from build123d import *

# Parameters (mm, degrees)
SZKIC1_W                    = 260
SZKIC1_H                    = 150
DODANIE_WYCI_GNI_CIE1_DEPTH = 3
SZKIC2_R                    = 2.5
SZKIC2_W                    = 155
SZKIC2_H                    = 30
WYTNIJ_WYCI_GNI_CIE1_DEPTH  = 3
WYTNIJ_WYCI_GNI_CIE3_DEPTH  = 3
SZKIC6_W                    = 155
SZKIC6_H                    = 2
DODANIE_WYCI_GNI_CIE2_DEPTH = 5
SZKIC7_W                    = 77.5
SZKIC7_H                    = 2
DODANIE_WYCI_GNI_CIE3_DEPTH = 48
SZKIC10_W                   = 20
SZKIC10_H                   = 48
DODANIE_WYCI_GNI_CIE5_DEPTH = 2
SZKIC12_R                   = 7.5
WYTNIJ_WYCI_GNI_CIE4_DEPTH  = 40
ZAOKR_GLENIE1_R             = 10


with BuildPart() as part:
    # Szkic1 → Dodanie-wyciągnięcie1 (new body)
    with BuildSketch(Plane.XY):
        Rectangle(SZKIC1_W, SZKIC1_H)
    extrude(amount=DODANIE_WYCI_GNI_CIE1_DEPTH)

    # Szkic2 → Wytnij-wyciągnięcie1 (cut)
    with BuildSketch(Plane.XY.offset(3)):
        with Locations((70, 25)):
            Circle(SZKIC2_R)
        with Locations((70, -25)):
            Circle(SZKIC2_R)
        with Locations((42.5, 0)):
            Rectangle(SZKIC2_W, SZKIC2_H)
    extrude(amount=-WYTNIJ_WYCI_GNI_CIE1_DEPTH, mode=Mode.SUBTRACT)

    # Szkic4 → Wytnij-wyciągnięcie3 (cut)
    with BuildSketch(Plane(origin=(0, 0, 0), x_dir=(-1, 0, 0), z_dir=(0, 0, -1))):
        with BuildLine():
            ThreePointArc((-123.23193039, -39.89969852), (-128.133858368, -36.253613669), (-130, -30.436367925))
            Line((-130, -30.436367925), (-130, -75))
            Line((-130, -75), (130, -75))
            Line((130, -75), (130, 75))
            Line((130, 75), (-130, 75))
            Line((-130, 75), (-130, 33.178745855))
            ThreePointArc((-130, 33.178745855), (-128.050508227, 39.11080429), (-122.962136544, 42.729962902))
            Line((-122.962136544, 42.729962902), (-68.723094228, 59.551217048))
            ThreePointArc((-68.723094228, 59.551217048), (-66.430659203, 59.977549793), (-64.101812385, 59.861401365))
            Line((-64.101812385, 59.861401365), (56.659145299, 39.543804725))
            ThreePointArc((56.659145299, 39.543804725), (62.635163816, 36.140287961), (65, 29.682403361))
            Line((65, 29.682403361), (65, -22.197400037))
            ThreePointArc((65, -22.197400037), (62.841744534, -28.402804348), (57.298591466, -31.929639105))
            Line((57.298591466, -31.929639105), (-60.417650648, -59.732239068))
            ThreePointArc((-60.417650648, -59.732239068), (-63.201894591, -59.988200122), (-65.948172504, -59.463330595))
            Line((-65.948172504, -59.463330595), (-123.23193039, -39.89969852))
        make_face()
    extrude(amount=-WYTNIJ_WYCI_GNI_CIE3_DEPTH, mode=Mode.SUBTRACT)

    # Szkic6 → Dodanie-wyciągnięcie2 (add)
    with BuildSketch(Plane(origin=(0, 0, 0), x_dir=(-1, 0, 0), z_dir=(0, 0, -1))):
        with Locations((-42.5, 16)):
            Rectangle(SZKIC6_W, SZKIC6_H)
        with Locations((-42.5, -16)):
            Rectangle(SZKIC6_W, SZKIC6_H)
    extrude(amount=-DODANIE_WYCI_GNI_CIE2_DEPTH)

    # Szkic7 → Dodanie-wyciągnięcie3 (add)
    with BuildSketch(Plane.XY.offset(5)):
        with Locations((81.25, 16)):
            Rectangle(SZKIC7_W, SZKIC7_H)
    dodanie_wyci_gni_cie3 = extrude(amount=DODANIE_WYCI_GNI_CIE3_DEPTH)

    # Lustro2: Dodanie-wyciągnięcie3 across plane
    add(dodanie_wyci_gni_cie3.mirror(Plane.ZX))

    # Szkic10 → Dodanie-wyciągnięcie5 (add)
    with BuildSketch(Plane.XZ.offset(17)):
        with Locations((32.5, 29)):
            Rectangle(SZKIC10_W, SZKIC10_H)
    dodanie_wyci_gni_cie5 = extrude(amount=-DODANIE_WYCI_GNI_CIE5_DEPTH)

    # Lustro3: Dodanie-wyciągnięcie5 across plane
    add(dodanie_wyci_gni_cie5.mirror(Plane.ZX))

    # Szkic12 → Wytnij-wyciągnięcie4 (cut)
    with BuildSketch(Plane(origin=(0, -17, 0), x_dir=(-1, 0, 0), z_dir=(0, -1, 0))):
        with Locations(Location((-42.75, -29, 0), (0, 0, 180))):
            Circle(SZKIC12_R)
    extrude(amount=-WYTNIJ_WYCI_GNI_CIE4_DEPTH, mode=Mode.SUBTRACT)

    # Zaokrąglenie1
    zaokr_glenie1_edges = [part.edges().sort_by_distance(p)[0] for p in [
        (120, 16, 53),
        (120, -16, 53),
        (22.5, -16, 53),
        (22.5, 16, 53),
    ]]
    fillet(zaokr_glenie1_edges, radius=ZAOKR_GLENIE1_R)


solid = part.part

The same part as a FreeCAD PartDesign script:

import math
import FreeCAD as App
import Part
import Sketcher

V = App.Vector
Q = App.Units.Quantity


def edges_at(feature, points):
    """Names of the edges that pass closest to the given points."""
    edges = feature.Shape.Edges
    near = lambda p: min(range(len(edges)), key=lambda i: edges[i].distToShape(Part.Vertex(*p))[0])
    return sorted({f"Edge{near(p) + 1}" for p in points})

doc = App.newDocument("Part")
body = doc.addObject("PartDesign::Body", "Body")

sketch1 = body.newObject("Sketcher::SketchObject", "Sketch")
sketch1.AttachmentSupport = (doc.getObject("XY_Plane"), [""])
sketch1.MapMode = "FlatFace"
sketch1.addGeometry([
    Part.LineSegment(V(-130, 75, 0), V(-130, -75, 0)),
    Part.LineSegment(V(-130, -75, 0), V(130, -75, 0)),
    Part.LineSegment(V(130, -75, 0), V(130, 75, 0)),
    Part.LineSegment(V(130, 75, 0), V(-130, 75, 0)),
], False)
sketch1.addConstraint([
    Sketcher.Constraint("Coincident", 0, 2, 1, 1),
    Sketcher.Constraint("Coincident", 1, 2, 2, 1),
    Sketcher.Constraint("Coincident", 2, 2, 3, 1),
    Sketcher.Constraint("Coincident", 3, 2, 0, 1),
    Sketcher.Constraint("Vertical", 0),
    Sketcher.Constraint("Horizontal", 1),
    Sketcher.Constraint("Vertical", 2),
    Sketcher.Constraint("Horizontal", 3),
    Sketcher.Constraint("Symmetric", 0, 2, 2, 2, -1, 1),
    Sketcher.Constraint("DistanceX", 1, 1, 1, 2, Q("260 mm")),
    Sketcher.Constraint("DistanceY", 0, 2, 0, 1, Q("150 mm")),
])
pad1 = body.newObject("PartDesign::Pad", "Pad")
pad1.Profile = sketch1
pad1.Length = 3

sketch2 = body.newObject("Sketcher::SketchObject", "Sketch001")
sketch2.AttachmentSupport = (doc.getObject("XY_Plane"), [""])
sketch2.MapMode = "FlatFace"
sketch2.AttachmentOffset = App.Placement(V(0, 0, 3), App.Rotation())
sketch2.addGeometry([
    Part.Circle(V(70, 25, 0), V(0, 0, 1), 2.5),
    Part.Circle(V(70, -25, 0), V(0, 0, 1), 2.5),
    Part.LineSegment(V(-35, 15, 0), V(-35, -15, 0)),
    Part.LineSegment(V(-35, -15, 0), V(120, -15, 0)),
    Part.LineSegment(V(120, -15, 0), V(120, 15, 0)),
    Part.LineSegment(V(120, 15, 0), V(-35, 15, 0)),
], False)
sketch2.addConstraint([
    Sketcher.Constraint("Coincident", 2, 2, 3, 1),
    Sketcher.Constraint("Coincident", 3, 2, 4, 1),
    Sketcher.Constraint("Coincident", 4, 2, 5, 1),
    Sketcher.Constraint("Coincident", 5, 2, 2, 1),
    Sketcher.Constraint("Vertical", 2),
    Sketcher.Constraint("Horizontal", 3),
    Sketcher.Constraint("Vertical", 4),
    Sketcher.Constraint("Horizontal", 5),
    Sketcher.Constraint("Equal", 0, 1),
    Sketcher.Constraint("Symmetric", 0, 3, 1, 3, -1),
    Sketcher.Constraint("Diameter", 0, Q("5 mm")),
    Sketcher.Constraint("DistanceX", 3, 1, 3, 2, Q("155 mm")),
    Sketcher.Constraint("DistanceY", 2, 2, 2, 1, Q("30 mm")),
    Sketcher.Constraint("DistanceX", -1, 1, 0, 3, Q("70 mm")),
    Sketcher.Constraint("DistanceY", -1, 1, 0, 3, Q("25 mm")),
    Sketcher.Constraint("DistanceX", 2, 2, -1, 1, Q("35 mm")),
    Sketcher.Constraint("DistanceY", 2, 2, -1, 1, Q("15 mm")),
])
pocket1 = body.newObject("PartDesign::Pocket", "Pocket")
pocket1.Profile = sketch2
pocket1.Length = 3

sketch3 = body.newObject("Sketcher::SketchObject", "Sketch002")
sketch3.AttachmentSupport = (doc.getObject("XY_Plane"), [""])
sketch3.MapMode = "FlatFace"
sketch3.addGeometry([
    Part.ArcOfCircle(Part.Circle(V(120, -30.436368, 0), V(0, 0, 1), 10), math.radians(-71.143863), math.radians(0)),
    Part.LineSegment(V(130, -30.436368, 0), V(130, -75, 0)),
    Part.LineSegment(V(130, -75, 0), V(-130, -75, 0)),
    Part.LineSegment(V(-130, -75, 0), V(-130, 75, 0)),
    Part.LineSegment(V(-130, 75, 0), V(130, 75, 0)),
    Part.LineSegment(V(130, 75, 0), V(130, 33.178746, 0)),
    Part.ArcOfCircle(Part.Circle(V(120, 33.178746, 0), V(0, 0, 1), 10), math.radians(0), math.radians(72.769672)),
    Part.LineSegment(V(122.962137, 42.729963, 0), V(68.723094, 59.551217, 0)),
    Part.ArcOfCircle(Part.Circle(V(65.760958, 50, 0), V(0, 0, 1), 10), math.radians(72.769672), math.radians(99.550365)),
    Part.LineSegment(V(64.101812, 59.861401, 0), V(-56.659145, 39.543805, 0)),
    Part.ArcOfCircle(Part.Circle(V(-55, 29.682403, 0), V(0, 0, 1), 10), math.radians(99.550365), math.radians(180)),
    Part.LineSegment(V(-65, 29.682403, 0), V(-65, -22.1974, 0)),
    Part.ArcOfCircle(Part.Circle(V(-55, -22.1974, 0), V(0, 0, 1), 10), math.radians(180), math.radians(256.711221)),
    Part.LineSegment(V(-57.298591, -31.929639, 0), V(60.417651, -59.732239, 0)),
    Part.ArcOfCircle(Part.Circle(V(62.716242, -50, 0), V(0, 0, 1), 10), math.radians(-103.288779), math.radians(-71.143863)),
    Part.LineSegment(V(65.948173, -59.463331, 0), V(123.23193, -39.899699, 0)),
], False)
sketch3.addConstraint([
    Sketcher.Constraint("Coincident", 0, 2, 1, 1),
    Sketcher.Constraint("Coincident", 1, 2, 2, 1),
    Sketcher.Constraint("Coincident", 2, 2, 3, 1),
    Sketcher.Constraint("Coincident", 3, 2, 4, 1),
    Sketcher.Constraint("Coincident", 4, 2, 5, 1),
    Sketcher.Constraint("Coincident", 5, 2, 6, 1),
    Sketcher.Constraint("Coincident", 6, 2, 7, 1),
    Sketcher.Constraint("Coincident", 7, 2, 8, 1),
    Sketcher.Constraint("Coincident", 8, 2, 9, 1),
    Sketcher.Constraint("Coincident", 9, 2, 10, 1),
    Sketcher.Constraint("Coincident", 10, 2, 11, 1),
    Sketcher.Constraint("Coincident", 11, 2, 12, 1),
    Sketcher.Constraint("Coincident", 12, 2, 13, 1),
    Sketcher.Constraint("Coincident", 13, 2, 14, 1),
    Sketcher.Constraint("Coincident", 14, 2, 15, 1),
    Sketcher.Constraint("Coincident", 15, 2, 0, 1),
    Sketcher.Constraint("Vertical", 1),
    Sketcher.Constraint("Horizontal", 2),
    Sketcher.Constraint("Vertical", 3),
    Sketcher.Constraint("Horizontal", 4),
    Sketcher.Constraint("Vertical", 5),
    Sketcher.Constraint("Vertical", 11),
    Sketcher.Constraint("Radius", 0, Q("10 mm")),
    Sketcher.Constraint("Radius", 6, Q("10 mm")),
    Sketcher.Constraint("Radius", 8, Q("10 mm")),
    Sketcher.Constraint("Radius", 10, Q("10 mm")),
    Sketcher.Constraint("Radius", 12, Q("10 mm")),
    Sketcher.Constraint("Radius", 14, Q("10 mm")),
    Sketcher.Constraint("DistanceX", 2, 2, 2, 1, Q("260 mm")),
    Sketcher.Constraint("DistanceX", 4, 1, 4, 2, Q("260 mm")),
    Sketcher.Constraint("DistanceY", 3, 1, 3, 2, Q("150 mm")),
    Sketcher.Constraint("DistanceX", -1, 1, 0, 3, Q("120 mm")),
    Sketcher.Constraint("DistanceY", -1, 1, 8, 3, Q("50 mm")),
    Sketcher.Constraint("DistanceX", 10, 3, -1, 1, Q("55 mm")),
    Sketcher.Constraint("DistanceY", 14, 3, -1, 1, Q("50 mm")),
    Sketcher.Constraint("DistanceY", 1, 2, -1, 1, Q("75 mm")),
    Sketcher.Constraint("DistanceY", 12, 3, -1, 1, Q("22.1974 mm")),
    Sketcher.Constraint("DistanceY", -1, 1, 8, 2, Q("59.861401 mm")),
    Sketcher.Constraint("DistanceY", 11, 2, -1, 1, Q("22.1974 mm")),
    Sketcher.Constraint("DistanceY", 15, 2, -1, 1, Q("39.899699 mm")),
    Sketcher.Constraint("DistanceY", 10, 3, 9, 2, Q("9.861401 mm")),
    Sketcher.Constraint("DistanceY", 10, 2, 9, 2, Q("9.861401 mm")),
    Sketcher.Constraint("Distance", 7, Q("56.787572 mm")),
    Sketcher.Constraint("Distance", 9, Q("122.458212 mm")),
    Sketcher.Constraint("DistanceY", 1, 2, 1, 1, Q("44.563632 mm")),
    Sketcher.Constraint("DistanceY", 5, 2, 5, 1, Q("41.821254 mm")),
    Sketcher.Constraint("DistanceY", 11, 2, 11, 1, Q("51.879803 mm")),
    Sketcher.Constraint("DistanceX", 12, 2, -1, 1, Q("57.298591 mm")),
    Sketcher.Constraint("DistanceX", -1, 1, 13, 2, Q("60.417651 mm")),
    Sketcher.Constraint("DistanceY", 13, 2, -1, 1, Q("59.732239 mm")),
    Sketcher.Constraint("DistanceY", 14, 2, -1, 1, Q("59.463331 mm")),
    Sketcher.Constraint("DistanceX", -1, 1, 15, 2, Q("123.23193 mm")),
    Sketcher.Constraint("DistanceX", 8, 3, 6, 2, Q("57.201179 mm")),
    Sketcher.Constraint("DistanceY", 0, 3, 6, 2, Q("73.166331 mm")),
])
pocket2 = body.newObject("PartDesign::Pocket", "Pocket001")
pocket2.Profile = sketch3
pocket2.Length = 3
pocket2.Reversed = True

sketch4 = body.newObject("Sketcher::SketchObject", "Sketch003")
sketch4.AttachmentSupport = (doc.getObject("XY_Plane"), [""])
sketch4.MapMode = "FlatFace"
sketch4.addGeometry([
    Part.LineSegment(V(120, 17, 0), V(120, 15, 0)),
    Part.LineSegment(V(120, 15, 0), V(-35, 15, 0)),
    Part.LineSegment(V(-35, 15, 0), V(-35, 17, 0)),
    Part.LineSegment(V(-35, 17, 0), V(120, 17, 0)),
    Part.LineSegment(V(120, -15, 0), V(120, -17, 0)),
    Part.LineSegment(V(120, -17, 0), V(-35, -17, 0)),
    Part.LineSegment(V(-35, -17, 0), V(-35, -15, 0)),
    Part.LineSegment(V(-35, -15, 0), V(120, -15, 0)),
], False)
sketch4.addConstraint([
    Sketcher.Constraint("Coincident", 0, 2, 1, 1),
    Sketcher.Constraint("Coincident", 1, 2, 2, 1),
    Sketcher.Constraint("Coincident", 2, 2, 3, 1),
    Sketcher.Constraint("Coincident", 3, 2, 0, 1),
    Sketcher.Constraint("Coincident", 4, 2, 5, 1),
    Sketcher.Constraint("Coincident", 5, 2, 6, 1),
    Sketcher.Constraint("Coincident", 6, 2, 7, 1),
    Sketcher.Constraint("Coincident", 7, 2, 4, 1),
    Sketcher.Constraint("Vertical", 0),
    Sketcher.Constraint("Horizontal", 1),
    Sketcher.Constraint("Vertical", 2),
    Sketcher.Constraint("Horizontal", 3),
    Sketcher.Constraint("Vertical", 4),
    Sketcher.Constraint("Horizontal", 5),
    Sketcher.Constraint("Vertical", 6),
    Sketcher.Constraint("Horizontal", 7),
    Sketcher.Constraint("Symmetric", 3, 2, 4, 2, -1),
    Sketcher.Constraint("Symmetric", 1, 2, 6, 2, -1),
    Sketcher.Constraint("DistanceX", 1, 2, 1, 1, Q("155 mm")),
    Sketcher.Constraint("DistanceY", 0, 2, 0, 1, Q("2 mm")),
    Sketcher.Constraint("DistanceX", -1, 1, 0, 2, Q("120 mm")),
    Sketcher.Constraint("DistanceY", -1, 1, 0, 2, Q("15 mm")),
])
pad2 = body.newObject("PartDesign::Pad", "Pad001")
pad2.Profile = sketch4
pad2.Length = 5

sketch5 = body.newObject("Sketcher::SketchObject", "Sketch004")
sketch5.AttachmentSupport = (doc.getObject("XY_Plane"), [""])
sketch5.MapMode = "FlatFace"
sketch5.AttachmentOffset = App.Placement(V(0, 0, 5), App.Rotation())
sketch5.addGeometry([
    Part.LineSegment(V(42.5, 17, 0), V(42.5, 15, 0)),
    Part.LineSegment(V(42.5, 15, 0), V(120, 15, 0)),
    Part.LineSegment(V(120, 15, 0), V(120, 17, 0)),
    Part.LineSegment(V(120, 17, 0), V(42.5, 17, 0)),
], False)
sketch5.addConstraint([
    Sketcher.Constraint("Coincident", 0, 2, 1, 1),
    Sketcher.Constraint("Coincident", 1, 2, 2, 1),
    Sketcher.Constraint("Coincident", 2, 2, 3, 1),
    Sketcher.Constraint("Coincident", 3, 2, 0, 1),
    Sketcher.Constraint("Vertical", 0),
    Sketcher.Constraint("Horizontal", 1),
    Sketcher.Constraint("Vertical", 2),
    Sketcher.Constraint("Horizontal", 3),
    Sketcher.Constraint("DistanceY", 0, 2, 0, 1, Q("2 mm")),
    Sketcher.Constraint("DistanceX", 1, 1, 1, 2, Q("77.5 mm")),
    Sketcher.Constraint("DistanceY", -1, 1, 0, 2, Q("15 mm")),
    Sketcher.Constraint("DistanceX", -1, 1, 1, 2, Q("120 mm")),
])
pad3 = body.newObject("PartDesign::Pad", "Pad002")
pad3.Profile = sketch5
pad3.Length = 48
doc.recompute()

mirrored = body.newObject("PartDesign::Mirrored", "Mirrored")
mirrored.Originals = [pad3]
mirrored.MirrorPlane = (doc.getObject("XZ_Plane"), [""])
body.Tip = mirrored

sketch6 = body.newObject("Sketcher::SketchObject", "Sketch005")
sketch6.AttachmentSupport = (doc.getObject("XZ_Plane"), [""])
sketch6.MapMode = "FlatFace"
sketch6.AttachmentOffset = App.Placement(V(0, 0, 17), App.Rotation())
sketch6.addGeometry([
    Part.LineSegment(V(22, 53, 0), V(22, 5, 0)),
    Part.LineSegment(V(22, 5, 0), V(42, 5, 0)),
    Part.LineSegment(V(42, 5, 0), V(42, 53, 0)),
    Part.LineSegment(V(42, 53, 0), V(22, 53, 0)),
], False)
sketch6.addConstraint([
    Sketcher.Constraint("Coincident", 0, 2, 1, 1),
    Sketcher.Constraint("Coincident", 1, 2, 2, 1),
    Sketcher.Constraint("Coincident", 2, 2, 3, 1),
    Sketcher.Constraint("Coincident", 3, 2, 0, 1),
    Sketcher.Constraint("Vertical", 0),
    Sketcher.Constraint("Horizontal", 1),
    Sketcher.Constraint("Vertical", 2),
    Sketcher.Constraint("Horizontal", 3),
    Sketcher.Constraint("DistanceX", 1, 1, 1, 2, Q("20 mm")),
    Sketcher.Constraint("DistanceY", 0, 2, 0, 1, Q("48 mm")),
    Sketcher.Constraint("DistanceY", -1, 1, 0, 2, Q("5 mm")),
    Sketcher.Constraint("DistanceX", -1, 1, 0, 2, Q("22.5 mm")),
])
pad4 = body.newObject("PartDesign::Pad", "Pad003")
pad4.Profile = sketch6
pad4.Length = 2
pad4.Reversed = True
doc.recompute()

mirrored2 = body.newObject("PartDesign::Mirrored", "Mirrored001")
mirrored2.Originals = [pad4]
mirrored2.MirrorPlane = (doc.getObject("XZ_Plane"), [""])
body.Tip = mirrored2

sketch7 = body.newObject("Sketcher::SketchObject", "Sketch006")
sketch7.AttachmentSupport = (doc.getObject("XZ_Plane"), [""])
sketch7.MapMode = "FlatFace"
sketch7.AttachmentOffset = App.Placement(V(0, 0, 17), App.Rotation())
sketch7.addGeometry(Part.Circle(V(43, 29, 0), V(0, 0, 1), 8), False)
sketch7.addConstraint([
    Sketcher.Constraint("Diameter", 0, Q("15 mm")),
    Sketcher.Constraint("DistanceY", -1, 1, 0, 3, Q("29 mm")),
    Sketcher.Constraint("DistanceX", -1, 1, 0, 3, Q("42.75 mm")),
])
pocket3 = body.newObject("PartDesign::Pocket", "Pocket002")
pocket3.Profile = sketch7
pocket3.Length = 40
doc.recompute()

fillet = body.newObject("PartDesign::Fillet", "Fillet")
fillet.Base = (pocket3, edges_at(pocket3, [
    (120, 16, 53),
    (120, -16, 53),
    (22.5, -16, 53),
    (22.5, 16, 53),
]))
fillet.Radius = 10

doc.recompute()
